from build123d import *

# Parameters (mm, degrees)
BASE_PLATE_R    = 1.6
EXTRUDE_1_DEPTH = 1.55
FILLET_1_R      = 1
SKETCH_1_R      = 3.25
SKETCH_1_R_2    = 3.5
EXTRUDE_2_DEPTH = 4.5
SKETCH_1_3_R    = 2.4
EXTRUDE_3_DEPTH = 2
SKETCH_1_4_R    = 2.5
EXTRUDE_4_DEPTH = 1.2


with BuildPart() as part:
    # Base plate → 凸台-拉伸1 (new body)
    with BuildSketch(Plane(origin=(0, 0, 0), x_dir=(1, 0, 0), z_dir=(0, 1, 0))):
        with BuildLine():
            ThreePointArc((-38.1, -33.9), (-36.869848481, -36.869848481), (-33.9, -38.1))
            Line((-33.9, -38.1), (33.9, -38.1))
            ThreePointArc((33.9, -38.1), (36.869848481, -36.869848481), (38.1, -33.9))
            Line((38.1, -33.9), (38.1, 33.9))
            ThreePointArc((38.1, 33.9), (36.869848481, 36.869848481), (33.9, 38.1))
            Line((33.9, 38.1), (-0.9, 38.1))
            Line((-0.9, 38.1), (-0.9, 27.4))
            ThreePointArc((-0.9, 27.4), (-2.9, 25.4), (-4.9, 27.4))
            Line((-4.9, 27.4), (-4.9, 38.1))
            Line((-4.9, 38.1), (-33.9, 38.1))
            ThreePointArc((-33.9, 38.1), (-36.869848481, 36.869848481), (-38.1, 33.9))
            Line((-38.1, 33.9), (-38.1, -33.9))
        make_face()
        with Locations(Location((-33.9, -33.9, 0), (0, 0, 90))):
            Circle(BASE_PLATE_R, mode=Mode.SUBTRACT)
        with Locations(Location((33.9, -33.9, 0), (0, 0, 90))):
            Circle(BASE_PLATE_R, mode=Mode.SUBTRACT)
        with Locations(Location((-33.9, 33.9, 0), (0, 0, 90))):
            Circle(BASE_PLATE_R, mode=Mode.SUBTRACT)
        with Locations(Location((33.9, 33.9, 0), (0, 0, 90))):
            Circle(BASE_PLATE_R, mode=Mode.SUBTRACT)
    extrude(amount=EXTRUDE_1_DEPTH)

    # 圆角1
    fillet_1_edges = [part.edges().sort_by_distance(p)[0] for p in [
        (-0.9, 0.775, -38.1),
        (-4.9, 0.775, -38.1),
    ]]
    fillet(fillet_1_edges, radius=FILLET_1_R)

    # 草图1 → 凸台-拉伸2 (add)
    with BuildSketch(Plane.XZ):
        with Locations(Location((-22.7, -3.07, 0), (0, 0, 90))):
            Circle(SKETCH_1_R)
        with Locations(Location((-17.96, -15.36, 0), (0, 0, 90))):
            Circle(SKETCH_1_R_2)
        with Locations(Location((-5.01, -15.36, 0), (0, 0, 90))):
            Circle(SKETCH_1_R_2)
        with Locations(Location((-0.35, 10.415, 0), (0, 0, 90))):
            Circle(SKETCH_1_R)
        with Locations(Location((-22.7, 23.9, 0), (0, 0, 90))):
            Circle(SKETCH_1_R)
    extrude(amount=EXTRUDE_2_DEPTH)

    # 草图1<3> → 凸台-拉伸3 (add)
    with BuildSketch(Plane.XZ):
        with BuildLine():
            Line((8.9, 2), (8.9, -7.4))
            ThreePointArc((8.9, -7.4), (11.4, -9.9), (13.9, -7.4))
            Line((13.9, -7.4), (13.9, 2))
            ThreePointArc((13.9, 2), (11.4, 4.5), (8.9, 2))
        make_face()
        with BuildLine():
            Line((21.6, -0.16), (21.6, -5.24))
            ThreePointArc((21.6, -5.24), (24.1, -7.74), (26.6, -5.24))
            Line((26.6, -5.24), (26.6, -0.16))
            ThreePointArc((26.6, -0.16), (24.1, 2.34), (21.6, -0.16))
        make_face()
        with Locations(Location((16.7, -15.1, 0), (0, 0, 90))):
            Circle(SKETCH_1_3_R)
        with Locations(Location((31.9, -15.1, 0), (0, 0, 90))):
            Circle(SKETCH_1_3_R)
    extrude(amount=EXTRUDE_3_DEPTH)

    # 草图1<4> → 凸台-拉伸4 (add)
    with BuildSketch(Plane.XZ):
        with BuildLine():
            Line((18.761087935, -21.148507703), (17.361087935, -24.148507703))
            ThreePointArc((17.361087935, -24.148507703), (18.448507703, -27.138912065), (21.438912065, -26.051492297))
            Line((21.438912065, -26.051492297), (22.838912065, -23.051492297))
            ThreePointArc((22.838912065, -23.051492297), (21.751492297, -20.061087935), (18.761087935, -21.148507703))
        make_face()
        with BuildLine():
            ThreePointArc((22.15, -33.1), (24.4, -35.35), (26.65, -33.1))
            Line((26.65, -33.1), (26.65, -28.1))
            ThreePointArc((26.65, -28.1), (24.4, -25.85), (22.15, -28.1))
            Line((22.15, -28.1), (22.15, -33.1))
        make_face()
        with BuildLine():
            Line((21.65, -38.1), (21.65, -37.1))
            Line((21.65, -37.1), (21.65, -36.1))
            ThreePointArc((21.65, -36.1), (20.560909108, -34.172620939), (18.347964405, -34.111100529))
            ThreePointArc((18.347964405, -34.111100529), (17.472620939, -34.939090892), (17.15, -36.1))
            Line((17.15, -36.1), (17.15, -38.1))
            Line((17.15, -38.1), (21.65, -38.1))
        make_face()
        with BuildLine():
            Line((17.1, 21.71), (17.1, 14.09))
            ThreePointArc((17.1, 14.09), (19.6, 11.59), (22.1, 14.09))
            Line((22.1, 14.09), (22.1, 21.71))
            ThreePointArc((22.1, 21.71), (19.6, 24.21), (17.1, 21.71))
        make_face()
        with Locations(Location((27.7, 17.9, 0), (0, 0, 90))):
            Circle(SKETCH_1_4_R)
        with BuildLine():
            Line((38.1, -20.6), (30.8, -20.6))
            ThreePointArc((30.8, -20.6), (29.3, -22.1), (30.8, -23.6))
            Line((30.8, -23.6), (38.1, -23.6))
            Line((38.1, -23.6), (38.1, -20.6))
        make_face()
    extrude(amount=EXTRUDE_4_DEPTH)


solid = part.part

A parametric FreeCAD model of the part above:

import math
import FreeCAD as App
import Part
import Sketcher
from FreeCAD import Vector


def edges_at(feature, points):
    """Names of the edges that pass closest to the given points."""
    edges = feature.Shape.Edges
    near = lambda p: min(range(len(edges)), key=lambda i: edges[i].distToShape(Part.Vertex(*p))[0])
    return sorted({f"Edge{near(p) + 1}" for p in points})

doc = App.newDocument("Part")
body = doc.addObject("PartDesign::Body", "Body")

# Sketch on XZ plane
sketch1 = doc.addObject("Sketcher::SketchObject", "Sketch")
body.addObject(sketch1)
sketch1.AttachmentSupport = (doc.XZ_Plane, [""])
sketch1.MapMode = "FlatFace"
sketch1.addGeometry([
    Part.ArcOfCircle(Part.Circle(Vector(-33.9, 33.9, 0), Vector(0, 0, 1), 4.2), math.radians(90), math.radians(180)),  # 0
    Part.LineSegment(Vector(-33.9, 38.1, 0), Vector(33.9, 38.1, 0)),  # 1
    Part.ArcOfCircle(Part.Circle(Vector(33.9, 33.9, 0), Vector(0, 0, 1), 4.2), math.radians(0), math.radians(90)),  # 2
    Part.LineSegment(Vector(38.1, 33.9, 0), Vector(38.1, -33.9, 0)),  # 3
    Part.ArcOfCircle(Part.Circle(Vector(33.9, -33.9, 0), Vector(0, 0, 1), 4.2), math.radians(-90), math.radians(0)),  # 4
    Part.LineSegment(Vector(33.9, -38.1, 0), Vector(-0.9, -38.1, 0)),  # 5
    Part.LineSegment(Vector(-0.9, -38.1, 0), Vector(-0.9, -27.4, 0)),  # 6
    Part.ArcOfCircle(Part.Circle(Vector(-2.9, -27.4, 0), Vector(0, 0, 1), 2), math.radians(0), math.radians(180)),  # 7
    Part.LineSegment(Vector(-4.9, -27.4, 0), Vector(-4.9, -38.1, 0)),  # 8
    Part.LineSegment(Vector(-4.9, -38.1, 0), Vector(-33.9, -38.1, 0)),  # 9
    Part.ArcOfCircle(Part.Circle(Vector(-33.9, -33.9, 0), Vector(0, 0, 1), 4.2), math.radians(180), math.radians(270)),  # 10
    Part.LineSegment(Vector(-38.1, -33.9, 0), Vector(-38.1, 33.9, 0)),  # 11
    Part.Circle(Vector(-33.9, 33.9, 0), Vector(0, 0, 1), 1.6),  # 12
    Part.Circle(Vector(33.9, 33.9, 0), Vector(0, 0, 1), 1.6),  # 13
    Part.Circle(Vector(-33.9, -33.9, 0), Vector(0, 0, 1), 1.6),  # 14
    Part.Circle(Vector(33.9, -33.9, 0), Vector(0, 0, 1), 1.6),  # 15
], False)
sketch1.addConstraint([
    Sketcher.Constraint("Tangent", 0, 1, 1, 1),
    Sketcher.Constraint("Tangent", 1, 2, 2, 2),
    Sketcher.Constraint("Tangent", 2, 1, 3, 1),
    Sketcher.Constraint("Tangent", 3, 2, 4, 2),
    Sketcher.Constraint("Tangent", 4, 1, 5, 1),
    Sketcher.Constraint("Coincident", 5, 2, 6, 1),
    Sketcher.Constraint("Tangent", 6, 2, 7, 1),
    Sketcher.Constraint("Tangent", 7, 2, 8, 1),
    Sketcher.Constraint("Coincident", 8, 2, 9, 1),
    Sketcher.Constraint("Tangent", 9, 2, 10, 2),
    Sketcher.Constraint("Tangent", 10, 1, 11, 1),
    Sketcher.Constraint("Tangent", 11, 2, 0, 2),
    Sketcher.Constraint("Horizontal", 1),
    Sketcher.Constraint("Vertical", 3),
    Sketcher.Constraint("Horizontal", 5),
    Sketcher.Constraint("Vertical", 6),
    Sketcher.Constraint("Vertical", 8),
    Sketcher.Constraint("Horizontal", 9),
    Sketcher.Constraint("Vertical", 11),
    Sketcher.Constraint("Coincident", 12, 3, 0, 3),
    Sketcher.Constraint("Coincident", 13, 3, 2, 3),
    Sketcher.Constraint("Coincident", 14, 3, 10, 3),
    Sketcher.Constraint("Coincident", 15, 3, 4, 3),
    Sketcher.Constraint("Equal", 0, 2),
    Sketcher.Constraint("Equal", 2, 4),
    Sketcher.Constraint("Equal", 4, 10),
    Sketcher.Constraint("Equal", 12, 13),
    Sketcher.Constraint("Equal", 13, 14),
    Sketcher.Constraint("Equal", 14, 15),
    Sketcher.Constraint("Symmetric", 0, 3, 4, 3, -1, 1),
    Sketcher.Constraint("Horizontal", 4, 3, 10, 3),
    Sketcher.Constraint("Equal", 1, 3),
    Sketcher.Constraint("Radius", 7, 2.0),
    Sketcher.Constraint("Diameter", 12, 3.2),
    Sketcher.Constraint("Radius", 0, 4.2),
    Sketcher.Constraint("DistanceX", 9, 2, 9, 1, 29.0),
    Sketcher.Constraint("DistanceX", 1, 1, 1, 2, 67.8),
    Sketcher.Constraint("DistanceY", 6, 1, 6, 2, 10.7),
])
pad1 = doc.addObject("PartDesign::Pad", "Pad")
body.addObject(pad1)
pad1.Profile = sketch1
pad1.Length = 1.55
pad1.Reversed = True
doc.recompute()

fillet = doc.addObject("PartDesign::Fillet", "Fillet")
body.addObject(fillet)
fillet.Base = (pad1, edges_at(pad1, [(-0.9, 0.775, -38.1), (-4.9, 0.775, -38.1)]))
fillet.Radius = 1

# Sketch on XZ plane
sketch2 = doc.addObject("Sketcher::SketchObject", "Sketch001")
body.addObject(sketch2)
sketch2.AttachmentSupport = (doc.XZ_Plane, [""])
sketch2.MapMode = "FlatFace"
sketch2.addGeometry([
    Part.Circle(Vector(-22.7, -3.1, 0), Vector(0, 0, 1), 3.2),  # 0
    Part.Circle(Vector(-18, -15.4, 0), Vector(0, 0, 1), 3.5),  # 1
    Part.Circle(Vector(-5, -15.4, 0), Vector(0, 0, 1), 3.5),  # 2
    Part.Circle(Vector(-0.3, 10.4, 0), Vector(0, 0, 1), 3.2),  # 3
    Part.Circle(Vector(-22.7, 23.9, 0), Vector(0, 0, 1), 3.2),  # 4
], False)
sketch2.addConstraint([
    Sketcher.Constraint("Equal", 1, 2),
    Sketcher.Constraint("Equal", 0, 3),
    Sketcher.Constraint("Equal", 3, 4),
    Sketcher.Constraint("Horizontal", 1, 3, 2, 3),
    Sketcher.Constraint("Vertical", 0, 3, 4, 3),
    Sketcher.Constraint("Diameter", 1, 7.0),
    Sketcher.Constraint("Diameter", 0, 6.5),
    Sketcher.Constraint("DistanceX", 0, 3, -1, 1, 22.7),
    Sketcher.Constraint("DistanceY", -1, 1, 4, 3, 23.9),
    Sketcher.Constraint("DistanceY", 0, 3, -1, 1, 3.07),
    Sketcher.Constraint("DistanceX", 1, 3, -1, 1, 17.96),
    Sketcher.Constraint("DistanceY", 1, 3, -1, 1, 15.36),
    Sketcher.Constraint("DistanceX", 2, 3, -1, 1, 5.01),
    Sketcher.Constraint("DistanceX", 3, 3, -1, 1, 0.35),
    Sketcher.Constraint("DistanceY", -1, 1, 3, 3, 10.415),
])
pad2 = doc.addObject("PartDesign::Pad", "Pad001")
body.addObject(pad2)
pad2.Profile = sketch2
pad2.Length = 4.5

# Sketch on XZ plane
sketch3 = doc.addObject("Sketcher::SketchObject", "Sketch002")
body.addObject(sketch3)
sketch3.AttachmentSupport = (doc.XZ_Plane, [""])
sketch3.MapMode = "FlatFace"
sketch3.addGeometry([
    Part.LineSegment(Vector(8.9, 2, 0), Vector(8.9, -7.4, 0)),  # 0
    Part.ArcOfCircle(Part.Circle(Vector(11.4, -7.4, 0), Vector(0, 0, 1), 2.5), math.radians(180), math.radians(360)),  # 1
    Part.LineSegment(Vector(13.9, -7.4, 0), Vector(13.9, 2, 0)),  # 2
    Part.ArcOfCircle(Part.Circle(Vector(11.4, 2, 0), Vector(0, 0, 1), 2.5), math.radians(0), math.radians(180)),  # 3
    Part.LineSegment(Vector(21.6, -0.2, 0), Vector(21.6, -5.2, 0)),  # 4
    Part.ArcOfCircle(Part.Circle(Vector(24.1, -5.2, 0), Vector(0, 0, 1), 2.5), math.radians(180), math.radians(360)),  # 5
    Part.LineSegment(Vector(26.6, -5.2, 0), Vector(26.6, -0.2, 0)),  # 6
    Part.ArcOfCircle(Part.Circle(Vector(24.1, -0.2, 0), Vector(0, 0, 1), 2.5), math.radians(0), math.radians(180)),  # 7
    Part.Circle(Vector(16.7, -15.1, 0), Vector(0, 0, 1), 2.4),  # 8
    Part.Circle(Vector(31.9, -15.1, 0), Vector(0, 0, 1), 2.4),  # 9
], False)
sketch3.addConstraint([
    Sketcher.Constraint("Tangent", 0, 2, 1, 1),
    Sketcher.Constraint("Tangent", 1, 2, 2, 1),
    Sketcher.Constraint("Tangent", 2, 2, 3, 1),
    Sketcher.Constraint("Tangent", 3, 2, 0, 1),
    Sketcher.Constraint("Tangent", 4, 2, 5, 1),
    Sketcher.Constraint("Tangent", 5, 2, 6, 1),
    Sketcher.Constraint("Tangent", 6, 2, 7, 1),
    Sketcher.Constraint("Tangent", 7, 2, 4, 1),
    Sketcher.Constraint("Vertical", 0),
    Sketcher.Constraint("Vertical", 2),
    Sketcher.Constraint("Vertical", 4),
    Sketcher.Constraint("Vertical", 6),
    Sketcher.Constraint("Equal", 3, 5),
    Sketcher.Constraint("Equal", 8, 9),
    Sketcher.Constraint("Horizontal", 8, 3, 9, 3),
    Sketcher.Constraint("Diameter", 8, 4.8),
    Sketcher.Constraint("Radius", 1, 2.5),
    Sketcher.Constraint("DistanceY", 0, 2, 0, 1, 9.4),
    Sketcher.Constraint("DistanceY", -1, 1, 3, 3, 2.0),
    Sketcher.Constraint("DistanceY", 4, 2, 4, 1, 5.08),
    Sketcher.Constraint("DistanceX", -1, 1, 1, 3, 11.4),
    Sketcher.Constraint("DistanceX", -1, 1, 5, 3, 24.1),
    Sketcher.Constraint("DistanceX", -1, 1, 8, 3, 16.7),
    Sketcher.Constraint("DistanceY", 8, 3, -1, 1, 15.1),
    Sketcher.Constraint("DistanceX", -1, 1, 9, 3, 31.9),
    Sketcher.Constraint("DistanceY", 5, 3, -1, 1, 5.24),
])
pad3 = doc.addObject("PartDesign::Pad", "Pad002")
body.addObject(pad3)
pad3.Profile = sketch3
pad3.Length = 2

# Sketch on XZ plane
sketch4 = doc.addObject("Sketcher::SketchObject", "Sketch003")
body.addObject(sketch4)
sketch4.AttachmentSupport = (doc.XZ_Plane, [""])
sketch4.MapMode = "FlatFace"
sketch4.addGeometry([
    Part.LineSegment(Vector(18.8, -21.1, 0), Vector(17.4, -24.1, 0)),  # 0
    Part.ArcOfCircle(Part.Circle(Vector(19.4, -25.1, 0), Vector(0, 0, 1), 2.2), math.radians(155), math.radians(335)),  # 1
    Part.LineSegment(Vector(21.4, -26.1, 0), Vector(22.8, -23.1, 0)),  # 2
    Part.ArcOfCircle(Part.Circle(Vector(20.8, -22.1, 0), Vector(0, 0, 1), 2.2), math.radians(-25), math.radians(155)),  # 3
    Part.ArcOfCircle(Part.Circle(Vector(24.4, -33.1, 0), Vector(0, 0, 1), 2.2), math.radians(180), math.radians(360)),  # 4
    Part.LineSegment(Vector(26.6, -33.1, 0), Vector(26.6, -28.1, 0)),  # 5
    Part.ArcOfCircle(Part.Circle(Vector(24.4, -28.1, 0), Vector(0, 0, 1), 2.2), math.radians(0), math.radians(180)),  # 6
    Part.LineSegment(Vector(22.1, -28.1, 0), Vector(22.1, -33.1, 0)),  # 7
    Part.LineSegment(Vector(21.6, -38.1, 0), Vector(21.6, -36.1, 0)),  # 8
    Part.ArcOfCircle(Part.Circle(Vector(19.4, -36.1, 0), Vector(0, 0, 1), 2.2), math.radians(0), math.radians(118)),  # 9
    Part.ArcOfCircle(Part.Circle(Vector(19.4, -36.1, 0), Vector(0, 0, 1), 2.2), math.radians(118), math.radians(180)),  # 10
    Part.LineSegment(Vector(17.1, -36.1, 0), Vector(17.1, -38.1, 0)),  # 11
    Part.LineSegment(Vector(17.1, -38.1, 0), Vector(21.6, -38.1, 0)),  # 12
    Part.LineSegment(Vector(17.1, 21.7, 0), Vector(17.1, 14.1, 0)),  # 13
    Part.ArcOfCircle(Part.Circle(Vector(19.6, 14.1, 0), Vector(0, 0, 1), 2.5), math.radians(180), math.radians(360)),  # 14
    Part.LineSegment(Vector(22.1, 14.1, 0), Vector(22.1, 21.7, 0)),  # 15
    Part.ArcOfCircle(Part.Circle(Vector(19.6, 21.7, 0), Vector(0, 0, 1), 2.5), math.radians(0), math.radians(180)),  # 16
    Part.Circle(Vector(27.7, 17.9, 0), Vector(0, 0, 1), 2.5),  # 17
    Part.LineSegment(Vector(38.1, -20.6, 0), Vector(30.8, -20.6, 0)),  # 18
    Part.ArcOfCircle(Part.Circle(Vector(30.8, -22.1, 0), Vector(0, 0, 1), 1.5), math.radians(90), math.radians(270)),  # 19
    Part.LineSegment(Vector(30.8, -23.6, 0), Vector(38.1, -23.6, 0)),  # 20
    Part.LineSegment(Vector(38.1, -23.6, 0), Vector(38.1, -20.6, 0)),  # 21
], False)
sketch4.addConstraint([
    Sketcher.Constraint("Tangent", 0, 2, 1, 1),
    Sketcher.Constraint("Tangent", 1, 2, 2, 1),
    Sketcher.Constraint("Tangent", 2, 2, 3, 1),
    Sketcher.Constraint("Tangent", 3, 2, 0, 1),
    Sketcher.Constraint("Tangent", 4, 2, 5, 1),
    Sketcher.Constraint("Tangent", 5, 2, 6, 1),
    Sketcher.Constraint("Tangent", 6, 2, 7, 1),
    Sketcher.Constraint("Tangent", 7, 2, 4, 1),
    Sketcher.Constraint("Tangent", 8, 2, 9, 1),
    Sketcher.Constraint("Tangent", 9, 2, 10, 1),
    Sketcher.Constraint("Tangent", 10, 2, 11, 1),
    Sketcher.Constraint("Coincident", 11, 2, 12, 1),
    Sketcher.Constraint("Coincident", 12, 2, 8, 1),
    Sketcher.Constraint("Tangent", 13, 2, 14, 1),
    Sketcher.Constraint("Tangent", 14, 2, 15, 1),
    Sketcher.Constraint("Tangent", 15, 2, 16, 1),
    Sketcher.Constraint("Tangent", 16, 2, 13, 1),
    Sketcher.Constraint("Tangent", 18, 2, 19, 1),
    Sketcher.Constraint("Tangent", 19, 2, 20, 1),
    Sketcher.Constraint("Coincident", 20, 2, 21, 1),
    Sketcher.Constraint("Coincident", 21, 2, 18, 1),
    Sketcher.Constraint("Vertical", 5),
    Sketcher.Constraint("Vertical", 7),
    Sketcher.Constraint("Vertical", 8),
    Sketcher.Constraint("Vertical", 11),
    Sketcher.Constraint("Horizontal", 12),
    Sketcher.Constraint("Vertical", 13),
    Sketcher.Constraint("Vertical", 15),
    Sketcher.Constraint("Horizontal", 18),
    Sketcher.Constraint("Horizontal", 20),
    Sketcher.Constraint("Vertical", 21),
    Sketcher.Constraint("Equal", 1, 3),
    Sketcher.Constraint("Equal", 3, 4),
    Sketcher.Constraint("Equal", 6, 9),
    Sketcher.Constraint("Equal", 9, 10),
    Sketcher.Constraint("Equal", 16, 17),
    Sketcher.Constraint("Horizontal", 3, 3, 19, 3),
    Sketcher.Constraint("Vertical", 1, 3, 9, 3),
    Sketcher.Constraint("Diameter", 17, 5.0),
    Sketcher.Constraint("Radius", 19, 1.5),
    Sketcher.Constraint("DistanceY", 5, 1, 5, 2, 5.0),
    Sketcher.Constraint("DistanceY", 8, 1, 8, 2, 2.0),
    Sketcher.Constraint("Radius", 1, 2.25),
    Sketcher.Constraint("DistanceX", 18, 2, 18, 1, 7.3),
    Sketcher.Constraint("DistanceY", 1, 3, 3, 3, 3.0),
    Sketcher.Constraint("DistanceX", 1, 3, 4, 3, 5.0),
    Sketcher.Constraint("DistanceY", 4, 3, 1, 3, 8.0),
    Sketcher.Constraint("DistanceY", 9, 3, 4, 3, 3.0),
    Sketcher.Constraint("DistanceY", 3, 3, 17, 3, 40.0),
    Sketcher.Constraint("DistanceX", 3, 3, 19, 3, 10.0),
    Sketcher.Constraint("DistanceY", 13, 2, 13, 1, 7.62),
    Sketcher.Constraint("DistanceX", -1, 1, 1, 3, 19.4),
    Sketcher.Constraint("DistanceY", 1, 3, -1, 1, 25.1),
    Sketcher.Constraint("DistanceX", -1, 1, 3, 3, 20.8),
    Sketcher.Constraint("DistanceX", -1, 1, 14, 3, 19.6),
    Sketcher.Constraint("DistanceX", -1, 1, 17, 3, 27.7),
    Sketcher.Constraint("DistanceY", -1, 1, 14, 3, 14.09),
    Sketcher.Constraint("DistanceY", 9, 2, -1, 1, 34.111101),
])
pad4 = doc.addObject("PartDesign::Pad", "Pad003")
body.addObject(pad4)
pad4.Profile = sketch4
pad4.Length = 1.2

doc.recompute()
